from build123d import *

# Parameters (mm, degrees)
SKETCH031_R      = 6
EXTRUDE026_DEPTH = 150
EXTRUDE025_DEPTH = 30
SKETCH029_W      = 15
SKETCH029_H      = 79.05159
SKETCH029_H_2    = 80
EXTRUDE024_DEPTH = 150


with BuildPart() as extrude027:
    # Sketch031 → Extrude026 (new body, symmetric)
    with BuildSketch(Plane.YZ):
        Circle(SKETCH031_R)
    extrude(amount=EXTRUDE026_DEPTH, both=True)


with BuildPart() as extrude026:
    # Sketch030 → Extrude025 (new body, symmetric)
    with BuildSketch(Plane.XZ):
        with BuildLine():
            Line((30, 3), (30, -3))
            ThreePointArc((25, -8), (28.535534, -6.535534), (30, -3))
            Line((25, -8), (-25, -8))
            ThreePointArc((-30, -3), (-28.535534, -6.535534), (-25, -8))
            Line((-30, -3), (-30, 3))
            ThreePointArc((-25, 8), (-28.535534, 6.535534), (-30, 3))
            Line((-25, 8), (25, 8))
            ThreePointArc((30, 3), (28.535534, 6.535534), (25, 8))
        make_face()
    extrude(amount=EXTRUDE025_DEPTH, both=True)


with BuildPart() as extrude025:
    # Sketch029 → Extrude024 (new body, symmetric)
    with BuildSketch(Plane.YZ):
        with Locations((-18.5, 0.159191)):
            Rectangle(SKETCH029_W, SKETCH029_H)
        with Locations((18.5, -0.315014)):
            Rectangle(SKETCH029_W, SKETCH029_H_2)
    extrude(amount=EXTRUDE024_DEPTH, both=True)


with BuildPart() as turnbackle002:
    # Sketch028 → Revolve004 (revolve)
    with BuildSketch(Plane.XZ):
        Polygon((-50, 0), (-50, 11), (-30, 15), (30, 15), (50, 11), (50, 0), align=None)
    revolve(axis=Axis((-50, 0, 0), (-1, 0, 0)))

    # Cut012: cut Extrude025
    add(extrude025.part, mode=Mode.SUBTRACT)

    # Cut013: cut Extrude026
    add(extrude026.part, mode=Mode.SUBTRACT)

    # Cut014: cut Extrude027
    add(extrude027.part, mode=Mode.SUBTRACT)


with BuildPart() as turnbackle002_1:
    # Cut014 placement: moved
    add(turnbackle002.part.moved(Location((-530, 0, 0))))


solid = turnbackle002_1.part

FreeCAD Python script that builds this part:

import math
import FreeCAD as App
import Part
import Sketcher
from FreeCAD import Vector


def add_polygon(sketch, points):
    """Adds a closed chain of lines whose ends are joined by coincident constraints."""
    first, n = sketch.GeometryCount, len(points)
    for a, b in zip(points, points[1:] + points[:1]):
        sketch.addGeometry(Part.LineSegment(App.Vector(*a, 0), App.Vector(*b, 0)), False)
    for i in range(n):
        sketch.addConstraint(Sketcher.Constraint("Coincident", first + i, 2, first + (i + 1) % n, 1))

doc = App.newDocument("Part")
body = doc.addObject("PartDesign::Body", "Body")

# Sketch on YZ plane
sketch1 = body.newObject("Sketcher::SketchObject", "Sketch")
sketch1.AttachmentSupport = (doc.getObject("YZ_Plane"), [""])
sketch1.MapMode = "FlatFace"
sketch1.addGeometry(Part.Circle(Vector(0, 0, 0), Vector(0, 0, 1), 6), False)
sketch1.addConstraint(Sketcher.Constraint("Coincident", 0, 3, -1, 1))
sketch1.addConstraint(Sketcher.Constraint("Diameter", 0, 12.0))
pad1 = body.newObject("PartDesign::Pad", "Pad")
pad1.Profile = sketch1
pad1.Length = 300
pad1.Midplane = True
body2 = doc.addObject("PartDesign::Body", "Body001")

# Sketch on XZ plane
sketch2 = body2.newObject("Sketcher::SketchObject", "Sketch001")
sketch2.AttachmentSupport = (doc.getObject("XZ_Plane001"), [""])
sketch2.MapMode = "FlatFace"
sketch2.addGeometry(Part.LineSegment(Vector(30, -3, 0), Vector(30, 3, 0)), False)
sketch2.addGeometry(Part.ArcOfCircle(Part.Circle(Vector(25, 3, 0), Vector(0, 0, 1), 5), math.radians(0), math.radians(90)), False)
sketch2.addGeometry(Part.LineSegment(Vector(25, 8, 0), Vector(-25, 8, 0)), False)
sketch2.addGeometry(Part.ArcOfCircle(Part.Circle(Vector(-25, 3, 0), Vector(0, 0, 1), 5), math.radians(90), math.radians(180)), False)
sketch2.addGeometry(Part.LineSegment(Vector(-30, 3, 0), Vector(-30, -3, 0)), False)
sketch2.addGeometry(Part.ArcOfCircle(Part.Circle(Vector(-25, -3, 0), Vector(0, 0, 1), 5), math.radians(180), math.radians(270)), False)
sketch2.addGeometry(Part.LineSegment(Vector(-25, -8, 0), Vector(25, -8, 0)), False)
sketch2.addGeometry(Part.ArcOfCircle(Part.Circle(Vector(25, -3, 0), Vector(0, 0, 1), 5), math.radians(-90), math.radians(0)), False)
sketch2.addConstraint(Sketcher.Constraint("Tangent", 0, 2, 1, 1))
sketch2.addConstraint(Sketcher.Constraint("Tangent", 1, 2, 2, 1))
sketch2.addConstraint(Sketcher.Constraint("Tangent", 2, 2, 3, 1))
sketch2.addConstraint(Sketcher.Constraint("Tangent", 3, 2, 4, 1))
sketch2.addConstraint(Sketcher.Constraint("Tangent", 4, 2, 5, 1))
sketch2.addConstraint(Sketcher.Constraint("Tangent", 5, 2, 6, 1))
sketch2.addConstraint(Sketcher.Constraint("Tangent", 6, 2, 7, 1))
sketch2.addConstraint(Sketcher.Constraint("Tangent", 7, 2, 0, 1))
sketch2.addConstraint(Sketcher.Constraint("Vertical", 0))
sketch2.addConstraint(Sketcher.Constraint("Horizontal", 2))
sketch2.addConstraint(Sketcher.Constraint("Vertical", 4))
sketch2.addConstraint(Sketcher.Constraint("Horizontal", 6))
sketch2.addConstraint(Sketcher.Constraint("Equal", 1, 3))
sketch2.addConstraint(Sketcher.Constraint("Equal", 3, 5))
sketch2.addConstraint(Sketcher.Constraint("Equal", 5, 7))
sketch2.addConstraint(Sketcher.Constraint("Symmetric", 1, 3, 5, 3, -1, 1))
sketch2.addConstraint(Sketcher.Constraint("Radius", 1, 5.0))
sketch2.addConstraint(Sketcher.Constraint("DistanceX", 2, 2, 2, 1, 50.0))
sketch2.addConstraint(Sketcher.Constraint("DistanceY", 0, 1, 0, 2, 6.0))
pad2 = body2.newObject("PartDesign::Pad", "Pad001")
pad2.Profile = sketch2
pad2.Length = 60
pad2.Midplane = True
body3 = doc.addObject("PartDesign::Body", "Body002")
body3.AllowCompound = True

# Sketch on YZ plane
sketch3 = body3.newObject("Sketcher::SketchObject", "Sketch002")
sketch3.AttachmentSupport = (doc.getObject("YZ_Plane002"), [""])
sketch3.MapMode = "FlatFace"
add_polygon(sketch3, [(-26, 40), (-26, -39), (-11, -39), (-11, 40)])  # lines 0-3
add_polygon(sketch3, [(11, 40), (11, -40), (26, -40), (26, 40)])  # lines 4-7
sketch3.addConstraint(Sketcher.Constraint("Vertical", 0))
sketch3.addConstraint(Sketcher.Constraint("Horizontal", 1))
sketch3.addConstraint(Sketcher.Constraint("Vertical", 2))
sketch3.addConstraint(Sketcher.Constraint("Horizontal", 3))
sketch3.addConstraint(Sketcher.Constraint("Vertical", 4))
sketch3.addConstraint(Sketcher.Constraint("Horizontal", 5))
sketch3.addConstraint(Sketcher.Constraint("Vertical", 6))
sketch3.addConstraint(Sketcher.Constraint("Horizontal", 7))
sketch3.addConstraint(Sketcher.Constraint("Symmetric", 3, 2, 6, 2, -2))
sketch3.addConstraint(Sketcher.Constraint("Equal", 3, 5))
sketch3.addConstraint(Sketcher.Constraint("DistanceX", 1, 1, 1, 2, 15.0))
sketch3.addConstraint(Sketcher.Constraint("DistanceY", 4, 2, 4, 1, 80.0))
sketch3.addConstraint(Sketcher.Constraint("DistanceX", 0, 2, -1, 1, 26.0))
sketch3.addConstraint(Sketcher.Constraint("DistanceY", 0, 2, 0, 1, 79.05159))
sketch3.addConstraint(Sketcher.Constraint("DistanceY", 0, 2, -1, 1, 39.366604))
pad3 = body3.newObject("PartDesign::Pad", "Pad002")
pad3.Profile = sketch3
pad3.Length = 300
pad3.Midplane = True
body4 = doc.addObject("PartDesign::Body", "Body003")

# Sketch on XZ plane
sketch4 = body4.newObject("Sketcher::SketchObject", "Sketch003")
sketch4.AttachmentSupport = (doc.getObject("XZ_Plane003"), [""])
sketch4.MapMode = "FlatFace"
add_polygon(sketch4, [(-50, 11), (-50, 0), (50, 0), (50, 11), (30, 15), (-30, 15)])  # lines 0-5
sketch4.addConstraint(Sketcher.Constraint("Vertical", 0))
sketch4.addConstraint(Sketcher.Constraint("Horizontal", 1))
sketch4.addConstraint(Sketcher.Constraint("Vertical", 2))
sketch4.addConstraint(Sketcher.Constraint("Horizontal", 4))
sketch4.addConstraint(Sketcher.Constraint("Symmetric", 0, 2, 1, 2, -1, 1))
sketch4.addConstraint(Sketcher.Constraint("Horizontal", 2, 2, 5, 2))
sketch4.addConstraint(Sketcher.Constraint("Equal", 3, 5))
sketch4.addConstraint(Sketcher.Constraint("DistanceX", 1, 1, 1, 2, 100.0))
sketch4.addConstraint(Sketcher.Constraint("DistanceX", 4, 2, 4, 1, 60.0))
sketch4.addConstraint(Sketcher.Constraint("DistanceY", 0, 2, 0, 1, 11.0))
sketch4.addConstraint(Sketcher.Constraint("DistanceY", -1, 1, 3, 2, 15.0))
revolution = body4.newObject("PartDesign::Revolution", "Revolution")
revolution.Profile = sketch4
revolution.ReferenceAxis = (sketch4, ["H_Axis"])
revolution.Angle = 360
doc.recompute()

boolean = body4.newObject("PartDesign::Boolean", "Boolean")
boolean.Type = "Cut"
boolean.addObjects([body3])
doc.recompute()

boolean2 = body4.newObject("PartDesign::Boolean", "Boolean001")
boolean2.Type = "Cut"
boolean2.addObjects([body2])
doc.recompute()

boolean3 = body4.newObject("PartDesign::Boolean", "Boolean002")
boolean3.Type = "Cut"
boolean3.addObjects([body])
body5 = doc.addObject("PartDesign::Body", "Body004")
doc.recompute()

body4.Placement = App.Placement(Vector(-530, 0, 0), App.Rotation(Vector(0, 0, 1), 0))
boolean4 = body5.newObject("PartDesign::Boolean", "Boolean003")
boolean4.Type = "Fuse"
boolean4.addObjects([body4])

doc.recompute()
